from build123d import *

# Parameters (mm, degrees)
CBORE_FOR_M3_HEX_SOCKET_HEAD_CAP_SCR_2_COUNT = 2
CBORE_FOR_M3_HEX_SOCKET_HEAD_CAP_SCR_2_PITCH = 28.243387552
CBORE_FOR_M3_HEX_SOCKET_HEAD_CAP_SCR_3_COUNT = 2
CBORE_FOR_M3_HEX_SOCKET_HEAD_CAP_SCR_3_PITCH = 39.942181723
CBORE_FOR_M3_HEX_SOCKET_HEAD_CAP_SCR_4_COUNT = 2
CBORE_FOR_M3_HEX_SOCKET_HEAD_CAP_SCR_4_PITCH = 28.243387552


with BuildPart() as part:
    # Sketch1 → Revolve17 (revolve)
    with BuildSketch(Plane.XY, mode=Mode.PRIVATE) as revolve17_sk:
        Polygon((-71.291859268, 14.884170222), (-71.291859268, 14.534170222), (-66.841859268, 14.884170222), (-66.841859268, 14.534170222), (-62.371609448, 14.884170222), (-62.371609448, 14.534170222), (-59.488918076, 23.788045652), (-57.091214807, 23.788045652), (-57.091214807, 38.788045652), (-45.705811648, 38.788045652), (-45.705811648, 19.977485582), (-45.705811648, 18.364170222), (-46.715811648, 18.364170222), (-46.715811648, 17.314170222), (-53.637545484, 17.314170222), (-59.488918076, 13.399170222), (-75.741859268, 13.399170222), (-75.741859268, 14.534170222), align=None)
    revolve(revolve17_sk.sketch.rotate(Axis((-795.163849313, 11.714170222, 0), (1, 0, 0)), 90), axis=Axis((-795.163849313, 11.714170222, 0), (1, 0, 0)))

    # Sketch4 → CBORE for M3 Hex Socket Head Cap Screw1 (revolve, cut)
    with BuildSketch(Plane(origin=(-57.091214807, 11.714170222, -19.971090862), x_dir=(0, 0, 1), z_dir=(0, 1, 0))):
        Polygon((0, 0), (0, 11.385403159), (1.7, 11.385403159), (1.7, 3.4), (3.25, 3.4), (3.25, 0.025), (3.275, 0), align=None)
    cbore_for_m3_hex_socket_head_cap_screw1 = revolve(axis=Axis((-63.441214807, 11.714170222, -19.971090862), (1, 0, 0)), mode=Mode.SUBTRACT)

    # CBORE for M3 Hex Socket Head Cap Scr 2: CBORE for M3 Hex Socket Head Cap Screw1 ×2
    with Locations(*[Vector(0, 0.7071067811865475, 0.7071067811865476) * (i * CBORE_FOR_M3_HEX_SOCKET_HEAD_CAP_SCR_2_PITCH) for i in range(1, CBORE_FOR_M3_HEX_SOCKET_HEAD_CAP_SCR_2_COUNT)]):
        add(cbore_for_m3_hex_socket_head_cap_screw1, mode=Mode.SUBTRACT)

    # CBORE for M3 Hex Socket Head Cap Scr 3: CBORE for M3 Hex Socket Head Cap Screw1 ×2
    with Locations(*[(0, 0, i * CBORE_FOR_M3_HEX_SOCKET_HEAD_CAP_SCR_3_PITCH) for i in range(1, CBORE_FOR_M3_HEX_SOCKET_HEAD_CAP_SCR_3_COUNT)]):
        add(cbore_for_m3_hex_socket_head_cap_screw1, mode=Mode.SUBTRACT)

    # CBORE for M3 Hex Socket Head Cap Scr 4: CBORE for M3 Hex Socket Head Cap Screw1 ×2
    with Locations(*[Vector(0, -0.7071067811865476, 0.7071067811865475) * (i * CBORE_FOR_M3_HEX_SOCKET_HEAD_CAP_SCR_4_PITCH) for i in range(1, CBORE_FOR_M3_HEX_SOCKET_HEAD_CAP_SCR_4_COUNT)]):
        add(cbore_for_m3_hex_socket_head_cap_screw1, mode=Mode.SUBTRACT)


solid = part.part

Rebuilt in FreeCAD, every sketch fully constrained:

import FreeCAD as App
import Part
import Sketcher
from FreeCAD import Vector
Q = App.Units.Quantity


def add_polygon(sketch, points):
    """Adds a closed chain of lines whose ends are joined by coincident constraints."""
    first, n = sketch.GeometryCount, len(points)
    for a, b in zip(points, points[1:] + points[:1]):
        sketch.addGeometry(Part.LineSegment(App.Vector(*a, 0), App.Vector(*b, 0)), False)
    for i in range(n):
        sketch.addConstraint(Sketcher.Constraint("Coincident", first + i, 2, first + (i + 1) % n, 1))

doc = App.newDocument("Part")
body = doc.addObject("PartDesign::Body", "Body")

# Sketch on XY plane
sketch1 = body.newObject("Sketcher::SketchObject", "Sketch")
sketch1.AttachmentSupport = (doc.getObject("XY_Plane"), [""])
sketch1.MapMode = "FlatFace"
add_polygon(sketch1, [(-71.29, 14.53), (-71.29, 14.88), (-75.74, 14.53), (-75.74, 13.4), (-59.49, 13.4), (-53.64, 17.31), (-46.72, 17.31), (-46.72, 18.36), (-45.71, 18.36), (-45.71, 38.79), (-57.09, 38.79), (-57.09, 23.79), (-59.49, 23.79), (-62.37, 14.53), (-62.37, 14.88), (-66.84, 14.53), (-66.84, 14.88)])  # lines 0-16
sketch1.addGeometry(Part.LineSegment(Vector(-75.74, 11.71, 0), Vector(-45.71, 11.71, 0)), True)  # axis
sketch1.addConstraint([
    Sketcher.Constraint("Vertical", 0),
    Sketcher.Constraint("Vertical", 2),
    Sketcher.Constraint("Horizontal", 3),
    Sketcher.Constraint("Horizontal", 5),
    Sketcher.Constraint("Vertical", 6),
    Sketcher.Constraint("Horizontal", 7),
    Sketcher.Constraint("Vertical", 8),
    Sketcher.Constraint("Horizontal", 9),
    Sketcher.Constraint("Vertical", 10),
    Sketcher.Constraint("Horizontal", 11),
    Sketcher.Constraint("Vertical", 13),
    Sketcher.Constraint("Vertical", 15),
    Sketcher.Constraint("Horizontal", 17),
    Sketcher.Constraint("Parallel", 1, 16),
    Sketcher.Constraint("Horizontal", 1, 2, 12, 2),
    Sketcher.Constraint("Horizontal", 0, 2, 13, 2),
    Sketcher.Constraint("Horizontal", 12, 2, 14, 2),
    Sketcher.Constraint("Horizontal", 13, 2, 15, 2),
    Sketcher.Constraint("Horizontal", 14, 2, 16, 2),
    Sketcher.Constraint("Vertical", 3, 2, 11, 2),
    Sketcher.Constraint("Vertical", 2, 2, 17, 1),
    Sketcher.Constraint("Vertical", 8, 2, 17, 2),
    Sketcher.Constraint("DistanceY", 10, 2, 10, 1, Q("15 mm")),
    Sketcher.Constraint("DistanceX", 7, 1, 7, 2, Q("1.01 mm")),
    Sketcher.Constraint("DistanceY", 0, 1, 0, 2, Q("0.35 mm")),
    Sketcher.Constraint("DistanceY", 6, 1, 6, 2, Q("1.05 mm")),
    Sketcher.Constraint("DistanceX", 1, 2, 14, 2, Q("8.9 mm")),
    Sketcher.Constraint("DistanceY", 17, 2, 5, 2, Q("5.6 mm")),
    Sketcher.Constraint("DistanceY", 2, 2, 2, 1, Q("1.135 mm")),
    Sketcher.Constraint("DistanceY", 0, 2, 4, 2, Q("2.43 mm")),
    Sketcher.Constraint("DistanceX", 3, 1, 3, 2, Q("16.252941 mm")),
    Sketcher.Constraint("Distance", 14, Q("4.483931 mm")),
    Sketcher.Constraint("DistanceX", 5, 1, 5, 2, Q("6.921734 mm")),
    Sketcher.Constraint("DistanceX", 9, 2, 9, 1, Q("11.385403 mm")),
    Sketcher.Constraint("DistanceX", 11, 2, 11, 1, Q("2.397703 mm")),
    Sketcher.Constraint("DistanceY", 8, 1, 8, 2, Q("20.423875 mm")),
    Sketcher.Constraint("DistanceX", 0, 2, -1, 1, Q("71.291859 mm")),
    Sketcher.Constraint("DistanceY", -1, 1, 0, 2, Q("14.88417 mm")),
])
revolution = body.newObject("PartDesign::Revolution", "Revolution")
revolution.Profile = sketch1
revolution.ReferenceAxis = (sketch1, ["Axis0"])
revolution.Angle = 360

# Sketch on XZ plane
sketch2 = body.newObject("Sketcher::SketchObject", "Sketch001")
sketch2.AttachmentSupport = (doc.getObject("XZ_Plane"), [""])
sketch2.MapMode = "FlatFace"
sketch2.AttachmentOffset = App.Placement(Vector(0, 0, -11.71417), App.Rotation())
add_polygon(sketch2, [(-45.706, -19.971), (-57.091, -19.971), (-57.091, -16.696), (-57.066, -16.721), (-53.691, -16.721), (-53.691, -18.271), (-45.706, -18.271)])  # lines 0-6
sketch2.addGeometry(Part.LineSegment(Vector(-57.091, -19.971, 0), Vector(-45.706, -19.971, 0)), True)  # axis
sketch2.addConstraint([
    Sketcher.Constraint("Horizontal", 0),
    Sketcher.Constraint("Vertical", 1),
    Sketcher.Constraint("Horizontal", 3),
    Sketcher.Constraint("Vertical", 4),
    Sketcher.Constraint("Horizontal", 5),
    Sketcher.Constraint("Vertical", 6),
    Sketcher.Constraint("Horizontal", 7),
    Sketcher.Constraint("Coincident", 7, 1, 0, 2),
    Sketcher.Constraint("Vertical", 5, 2, 7, 2),
    Sketcher.Constraint("Angle", 2, Q("-45 deg")),
    Sketcher.Constraint("DistanceY", 6, 2, 6, 1, Q("1.7 mm")),
    Sketcher.Constraint("DistanceY", 4, 2, 4, 1, Q("1.55 mm")),
    Sketcher.Constraint("DistanceX", 1, 2, 3, 2, Q("3.4 mm")),
    Sketcher.Constraint("DistanceX", 3, 1, 3, 2, Q("3.375 mm")),
    Sketcher.Constraint("DistanceX", 0, 2, 0, 1, Q("11.385403 mm")),
    Sketcher.Constraint("DistanceY", 0, 2, -1, 1, Q("19.971091 mm")),
    Sketcher.Constraint("DistanceX", 5, 2, -1, 1, Q("45.705812 mm")),
])
groove = body.newObject("PartDesign::Groove", "Groove")
groove.Profile = sketch2
groove.ReferenceAxis = (sketch2, ["Axis0"])
groove.Angle = 360
doc.recompute()

datumline = body.newObject("PartDesign::Line", "DatumLine")
datumline.Placement = App.Placement(Vector(0, 0, 0), App.Rotation(Vector(0, 0, 1), Vector(0, 0.707106781, 0.707106781)))
linearpattern = body.newObject("PartDesign::LinearPattern", "LinearPattern")
linearpattern.Originals = [groove]
linearpattern.Direction = (datumline, [""])
linearpattern.Mode = "offset"
linearpattern.Offset = 28.243388
linearpattern.Occurrences = 2
body.Tip = linearpattern
doc.recompute()

linearpattern2 = body.newObject("PartDesign::LinearPattern", "LinearPattern001")
linearpattern2.Originals = [groove]
linearpattern2.Direction = (doc.getObject("Z_Axis"), [""])
linearpattern2.Mode = "offset"
linearpattern2.Offset = 39.942182
linearpattern2.Occurrences = 2
body.Tip = linearpattern2
doc.recompute()

datumline2 = body.newObject("PartDesign::Line", "DatumLine001")
datumline2.Placement = App.Placement(Vector(0, 0, 0), App.Rotation(Vector(0, 0, 1), Vector(0, -0.707106781, 0.707106781)))
linearpattern3 = body.newObject("PartDesign::LinearPattern", "LinearPattern002")
linearpattern3.Originals = [groove]
linearpattern3.Direction = (datumline2, [""])
linearpattern3.Mode = "offset"
linearpattern3.Offset = 28.243388
linearpattern3.Occurrences = 2
body.Tip = linearpattern3

doc.recompute()
